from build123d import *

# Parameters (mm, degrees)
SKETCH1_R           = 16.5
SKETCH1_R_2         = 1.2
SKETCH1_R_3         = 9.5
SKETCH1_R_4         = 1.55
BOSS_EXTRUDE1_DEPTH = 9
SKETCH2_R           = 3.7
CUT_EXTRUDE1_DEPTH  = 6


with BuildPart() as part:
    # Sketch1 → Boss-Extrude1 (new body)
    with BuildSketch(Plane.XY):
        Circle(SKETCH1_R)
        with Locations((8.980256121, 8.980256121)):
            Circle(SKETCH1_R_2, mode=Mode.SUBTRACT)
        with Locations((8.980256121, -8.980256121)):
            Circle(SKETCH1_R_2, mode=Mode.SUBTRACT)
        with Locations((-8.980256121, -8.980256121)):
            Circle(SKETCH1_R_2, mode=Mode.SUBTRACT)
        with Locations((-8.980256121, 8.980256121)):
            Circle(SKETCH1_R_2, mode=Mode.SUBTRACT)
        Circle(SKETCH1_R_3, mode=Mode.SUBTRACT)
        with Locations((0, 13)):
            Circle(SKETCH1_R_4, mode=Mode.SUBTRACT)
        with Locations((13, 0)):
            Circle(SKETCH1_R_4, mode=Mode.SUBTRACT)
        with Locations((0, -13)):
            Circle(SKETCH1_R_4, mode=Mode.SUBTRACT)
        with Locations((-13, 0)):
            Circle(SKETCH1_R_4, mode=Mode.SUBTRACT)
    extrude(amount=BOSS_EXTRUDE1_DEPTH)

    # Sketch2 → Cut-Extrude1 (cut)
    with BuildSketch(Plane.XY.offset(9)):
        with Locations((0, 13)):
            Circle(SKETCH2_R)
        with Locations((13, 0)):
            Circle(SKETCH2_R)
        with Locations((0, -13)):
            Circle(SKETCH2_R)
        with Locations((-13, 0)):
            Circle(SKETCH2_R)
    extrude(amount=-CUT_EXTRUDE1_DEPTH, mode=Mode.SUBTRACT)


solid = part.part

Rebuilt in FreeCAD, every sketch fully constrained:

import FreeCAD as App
import Part
import Sketcher
from FreeCAD import Vector
Q = App.Units.Quantity

doc = App.newDocument("Part")
body = doc.addObject("PartDesign::Body", "Body")

# Sketch on XY plane
sketch1 = body.newObject("Sketcher::SketchObject", "Sketch")
sketch1.AttachmentSupport = (doc.getObject("XY_Plane"), [""])
sketch1.MapMode = "FlatFace"
sketch1.addGeometry(Part.Circle(Vector(0, 0, 0), Vector(0, 0, 1), 16.5), False)
sketch1.addGeometry(Part.Circle(Vector(-8.980256, -8.980256, 0), Vector(0, 0, 1), 1.2), False)
sketch1.addGeometry(Part.Circle(Vector(0, -13, 0), Vector(0, 0, 1), 1.55), False)
sketch1.addGeometry(Part.Circle(Vector(-13, 0, 0), Vector(0, 0, 1), 1.55), False)
sketch1.addGeometry(Part.Circle(Vector(0, 0, 0), Vector(0, 0, 1), 9.5), False)
sketch1.addGeometry(Part.Circle(Vector(8.980256, -8.980256, 0), Vector(0, 0, 1), 1.2), False)
sketch1.addGeometry(Part.Circle(Vector(13, 0, 0), Vector(0, 0, 1), 1.55), False)
sketch1.addGeometry(Part.Circle(Vector(-8.980256, 8.980256, 0), Vector(0, 0, 1), 1.2), False)
sketch1.addGeometry(Part.Circle(Vector(0, 13, 0), Vector(0, 0, 1), 1.55), False)
sketch1.addGeometry(Part.Circle(Vector(8.980256, 8.980256, 0), Vector(0, 0, 1), 1.2), False)
sketch1.addConstraint(Sketcher.Constraint("Coincident", 0, 3, -1, 1))
sketch1.addConstraint(Sketcher.Constraint("Coincident", 4, 3, -1, 1))
sketch1.addConstraint(Sketcher.Constraint("Equal", 2, 3))
sketch1.addConstraint(Sketcher.Constraint("Equal", 1, 5))
sketch1.addConstraint(Sketcher.Constraint("Equal", 3, 6))
sketch1.addConstraint(Sketcher.Constraint("Equal", 5, 7))
sketch1.addConstraint(Sketcher.Constraint("Equal", 6, 8))
sketch1.addConstraint(Sketcher.Constraint("Equal", 7, 9))
sketch1.addConstraint(Sketcher.Constraint("Symmetric", 3, 3, 6, 3, -1, 1))
sketch1.addConstraint(Sketcher.Constraint("Symmetric", 5, 3, 7, 3, -1, 1))
sketch1.addConstraint(Sketcher.Constraint("Symmetric", 2, 3, 8, 3, -1, 1))
sketch1.addConstraint(Sketcher.Constraint("Symmetric", 1, 3, 9, 3, -1, 1))
sketch1.addConstraint(Sketcher.Constraint("Symmetric", 1, 3, 5, 3, -2))
sketch1.addConstraint(Sketcher.Constraint("PointOnObject", 2, 3, -2))
sketch1.addConstraint(Sketcher.Constraint("PointOnObject", 3, 3, -1))
sketch1.addConstraint(Sketcher.Constraint("Diameter", 0, Q("33 mm")))
sketch1.addConstraint(Sketcher.Constraint("Diameter", 4, Q("19 mm")))
sketch1.addConstraint(Sketcher.Constraint("Diameter", 1, Q("2.4 mm")))
sketch1.addConstraint(Sketcher.Constraint("Diameter", 2, Q("3.1 mm")))
sketch1.addConstraint(Sketcher.Constraint("DistanceY", 2, 3, -1, 1, Q("13 mm")))
sketch1.addConstraint(Sketcher.Constraint("DistanceX", 3, 3, -1, 1, Q("13 mm")))
sketch1.addConstraint(Sketcher.Constraint("DistanceX", 1, 3, -1, 1, Q("8.980256 mm")))
sketch1.addConstraint(Sketcher.Constraint("DistanceY", 1, 3, -1, 1, Q("8.980256 mm")))
pad1 = body.newObject("PartDesign::Pad", "Pad")
pad1.Profile = sketch1
pad1.Length = 9

# Sketch on XY plane
sketch2 = body.newObject("Sketcher::SketchObject", "Sketch001")
sketch2.AttachmentSupport = (doc.getObject("XY_Plane"), [""])
sketch2.MapMode = "FlatFace"
sketch2.AttachmentOffset = App.Placement(Vector(0, 0, 9), App.Rotation())
sketch2.addGeometry(Part.Circle(Vector(0, 13, 0), Vector(0, 0, 1), 3.7), False)
sketch2.addGeometry(Part.Circle(Vector(13, 0, 0), Vector(0, 0, 1), 3.7), False)
sketch2.addGeometry(Part.Circle(Vector(0, -13, 0), Vector(0, 0, 1), 3.7), False)
sketch2.addGeometry(Part.Circle(Vector(-13, 0, 0), Vector(0, 0, 1), 3.7), False)
sketch2.addConstraint(Sketcher.Constraint("Equal", 0, 1))
sketch2.addConstraint(Sketcher.Constraint("Equal", 1, 2))
sketch2.addConstraint(Sketcher.Constraint("Equal", 2, 3))
sketch2.addConstraint(Sketcher.Constraint("Symmetric", 0, 3, 2, 3, -1, 1))
sketch2.addConstraint(Sketcher.Constraint("Symmetric", 1, 3, 3, 3, -1, 1))
sketch2.addConstraint(Sketcher.Constraint("PointOnObject", 0, 3, -2))
sketch2.addConstraint(Sketcher.Constraint("PointOnObject", 1, 3, -1))
sketch2.addConstraint(Sketcher.Constraint("Diameter", 0, Q("7.4 mm")))
sketch2.addConstraint(Sketcher.Constraint("DistanceY", -1, 1, 0, 3, Q("13 mm")))
sketch2.addConstraint(Sketcher.Constraint("DistanceX", -1, 1, 1, 3, Q("13 mm")))
pocket1 = body.newObject("PartDesign::Pocket", "Pocket")
pocket1.Profile = sketch2
pocket1.Length = 6

doc.recompute()
